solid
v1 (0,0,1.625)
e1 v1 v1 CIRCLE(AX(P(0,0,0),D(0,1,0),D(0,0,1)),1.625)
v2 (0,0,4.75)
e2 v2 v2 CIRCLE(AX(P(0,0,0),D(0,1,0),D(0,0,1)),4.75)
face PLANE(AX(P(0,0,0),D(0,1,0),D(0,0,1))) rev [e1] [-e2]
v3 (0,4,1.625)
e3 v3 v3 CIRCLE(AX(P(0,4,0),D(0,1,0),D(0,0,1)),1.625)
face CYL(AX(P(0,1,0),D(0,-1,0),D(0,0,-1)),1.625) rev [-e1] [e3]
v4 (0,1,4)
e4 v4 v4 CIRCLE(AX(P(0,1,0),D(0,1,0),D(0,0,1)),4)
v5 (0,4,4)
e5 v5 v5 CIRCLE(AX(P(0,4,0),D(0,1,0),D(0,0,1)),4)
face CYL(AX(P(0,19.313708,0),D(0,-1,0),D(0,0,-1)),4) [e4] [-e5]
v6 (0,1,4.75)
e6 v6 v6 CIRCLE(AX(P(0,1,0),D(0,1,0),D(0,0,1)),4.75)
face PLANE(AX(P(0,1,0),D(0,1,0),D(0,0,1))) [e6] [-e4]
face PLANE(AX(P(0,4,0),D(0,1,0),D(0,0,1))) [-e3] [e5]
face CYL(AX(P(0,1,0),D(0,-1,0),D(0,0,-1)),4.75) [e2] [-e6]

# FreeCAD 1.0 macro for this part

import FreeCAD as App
import Part
import Sketcher
Q = App.Units.Quantity

doc = App.newDocument("Part")
body = doc.addObject("PartDesign::Body", "Body")

sketch1 = body.newObject("Sketcher::SketchObject", "Sketch")
sketch1.AttachmentSupport = (doc.getObject("XZ_Plane"), [""])
sketch1.MapMode = "FlatFace"
sketch1.addGeometry(Part.Circle(App.Vector(0, 0, 0), App.Vector(0, 0, 1), 4.8), False)
sketch1.addGeometry(Part.Circle(App.Vector(0, 0, 0), App.Vector(0, 0, 1), 1.6), False)
sketch1.addConstraint(Sketcher.Constraint("Coincident", 0, 3, -1, 1))
sketch1.addConstraint(Sketcher.Constraint("Coincident", 1, 3, -1, 1))
sketch1.addConstraint(Sketcher.Constraint("Diameter", 0, Q("9.5 mm")))
sketch1.addConstraint(Sketcher.Constraint("Diameter", 1, Q("3.25 mm")))
pad1 = body.newObject("PartDesign::Pad", "Pad")
pad1.Profile = sketch1
pad1.Length = 1
pad1.Reversed = True

sketch2 = body.newObject("Sketcher::SketchObject", "Sketch001")
sketch2.AttachmentSupport = (doc.getObject("XZ_Plane"), [""])
sketch2.MapMode = "FlatFace"
sketch2.AttachmentOffset = App.Placement(App.Vector(0, 0, -1), App.Rotation())
sketch2.addGeometry(Part.Circle(App.Vector(0, 0, 0), App.Vector(0, 0, 1), 4), False)
sketch2.addGeometry(Part.Circle(App.Vector(0, 0, 0), App.Vector(0, 0, 1), 1.6), False)
sketch2.addConstraint(Sketcher.Constraint("Coincident", 0, 3, -1, 1))
sketch2.addConstraint(Sketcher.Constraint("Coincident", 1, 3, -1, 1))
sketch2.addConstraint(Sketcher.Constraint("Diameter", 0, Q("8 mm")))
sketch2.addConstraint(Sketcher.Constraint("Diameter", 1, Q("3.25 mm")))
pad2 = body.newObject("PartDesign::Pad", "Pad001")
pad2.Profile = sketch2
pad2.Length = 3
pad2.Reversed = True

doc.recompute()
